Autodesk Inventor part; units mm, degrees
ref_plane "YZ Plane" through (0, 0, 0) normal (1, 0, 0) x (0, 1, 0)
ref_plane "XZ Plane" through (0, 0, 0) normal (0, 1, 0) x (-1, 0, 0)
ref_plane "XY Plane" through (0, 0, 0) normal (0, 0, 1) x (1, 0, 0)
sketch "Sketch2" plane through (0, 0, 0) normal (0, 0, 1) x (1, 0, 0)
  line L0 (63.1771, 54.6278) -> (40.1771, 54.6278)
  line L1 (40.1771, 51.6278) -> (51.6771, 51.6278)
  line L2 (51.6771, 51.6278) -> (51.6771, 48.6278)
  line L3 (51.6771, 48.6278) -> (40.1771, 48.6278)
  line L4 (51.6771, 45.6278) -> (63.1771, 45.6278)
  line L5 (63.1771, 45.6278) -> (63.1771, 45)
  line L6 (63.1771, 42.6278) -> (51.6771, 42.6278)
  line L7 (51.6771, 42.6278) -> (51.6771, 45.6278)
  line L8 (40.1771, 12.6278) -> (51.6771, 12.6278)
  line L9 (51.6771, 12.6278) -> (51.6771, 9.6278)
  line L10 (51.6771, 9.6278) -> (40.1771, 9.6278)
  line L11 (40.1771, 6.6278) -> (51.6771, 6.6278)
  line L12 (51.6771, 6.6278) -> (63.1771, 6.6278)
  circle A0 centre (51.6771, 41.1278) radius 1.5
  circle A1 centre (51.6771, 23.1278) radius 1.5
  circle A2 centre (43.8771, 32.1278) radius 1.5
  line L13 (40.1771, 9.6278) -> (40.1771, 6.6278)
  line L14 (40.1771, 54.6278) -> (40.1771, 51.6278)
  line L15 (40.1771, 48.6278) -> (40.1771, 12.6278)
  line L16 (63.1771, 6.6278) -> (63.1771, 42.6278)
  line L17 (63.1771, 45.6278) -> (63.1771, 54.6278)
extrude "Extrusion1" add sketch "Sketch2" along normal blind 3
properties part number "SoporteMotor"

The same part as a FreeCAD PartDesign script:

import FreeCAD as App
import Part
import Sketcher
from FreeCAD import Vector

doc = App.newDocument("Part")
params = doc.addObject("Spreadsheet::Sheet", "Params")
for row, (alias, value) in enumerate([
    ("sketch1_diameter", "3 mm"),
    ("sketch1_width", "23 mm"),
    ("sketch1_height", "9 mm"),
    ("sketch1_height2", "36 mm"),
    ("pad1_length", "3 mm"),
], start=1):
    params.set(f"A{row}", alias)
    params.set(f"B{row}", "=" + value)
    params.setAlias(f"B{row}", alias)

body = doc.addObject("PartDesign::Body", "Body")

sketch1 = doc.addObject("Sketcher::SketchObject", "Sketch")
body.addObject(sketch1)
sketch1.AttachmentSupport = (doc.XY_Plane, [""])
sketch1.MapMode = "FlatFace"
sketch1.addGeometry(Part.LineSegment(Vector(63.2, 45.6, 0), Vector(63.2, 54.6, 0)), False)
sketch1.addGeometry(Part.LineSegment(Vector(63.2, 54.6, 0), Vector(40.2, 54.6, 0)), False)
sketch1.addGeometry(Part.LineSegment(Vector(40.2, 54.6, 0), Vector(40.2, 51.6, 0)), False)
sketch1.addGeometry(Part.LineSegment(Vector(40.2, 51.6, 0), Vector(51.7, 51.6, 0)), False)
sketch1.addGeometry(Part.LineSegment(Vector(51.7, 51.6, 0), Vector(51.7, 48.6, 0)), False)
sketch1.addGeometry(Part.LineSegment(Vector(51.7, 48.6, 0), Vector(40.2, 48.6, 0)), False)
sketch1.addGeometry(Part.LineSegment(Vector(40.2, 48.6, 0), Vector(40.2, 12.6, 0)), False)
sketch1.addGeometry(Part.LineSegment(Vector(40.2, 12.6, 0), Vector(51.7, 12.6, 0)), False)
sketch1.addGeometry(Part.LineSegment(Vector(51.7, 12.6, 0), Vector(51.7, 9.6, 0)), False)
sketch1.addGeometry(Part.LineSegment(Vector(51.7, 9.6, 0), Vector(40.2, 9.6, 0)), False)
sketch1.addGeometry(Part.LineSegment(Vector(40.2, 9.6, 0), Vector(40.2, 6.6, 0)), False)
sketch1.addGeometry(Part.LineSegment(Vector(40.2, 6.6, 0), Vector(63.2, 6.6, 0)), False)
sketch1.addGeometry(Part.LineSegment(Vector(63.2, 6.6, 0), Vector(63.2, 42.6, 0)), False)
sketch1.addGeometry(Part.LineSegment(Vector(63.2, 42.6, 0), Vector(51.7, 42.6, 0)), False)
sketch1.addGeometry(Part.LineSegment(Vector(51.7, 42.6, 0), Vector(51.7, 45.6, 0)), False)
sketch1.addGeometry(Part.LineSegment(Vector(51.7, 45.6, 0), Vector(63.2, 45.6, 0)), False)
sketch1.addGeometry(Part.Circle(Vector(51.7, 23.1, 0), Vector(0, 0, 1), 1.5), False)
sketch1.addGeometry(Part.Circle(Vector(43.9, 32.1, 0), Vector(0, 0, 1), 1.5), False)
sketch1.addGeometry(Part.Circle(Vector(51.7, 41.1, 0), Vector(0, 0, 1), 1.5), False)
sketch1.addConstraint(Sketcher.Constraint("Coincident", 0, 2, 1, 1))
sketch1.addConstraint(Sketcher.Constraint("Coincident", 1, 2, 2, 1))
sketch1.addConstraint(Sketcher.Constraint("Coincident", 2, 2, 3, 1))
sketch1.addConstraint(Sketcher.Constraint("Coincident", 3, 2, 4, 1))
sketch1.addConstraint(Sketcher.Constraint("Coincident", 4, 2, 5, 1))
sketch1.addConstraint(Sketcher.Constraint("Coincident", 5, 2, 6, 1))
sketch1.addConstraint(Sketcher.Constraint("Coincident", 6, 2, 7, 1))
sketch1.addConstraint(Sketcher.Constraint("Coincident", 7, 2, 8, 1))
sketch1.addConstraint(Sketcher.Constraint("Coincident", 8, 2, 9, 1))
sketch1.addConstraint(Sketcher.Constraint("Coincident", 9, 2, 10, 1))
sketch1.addConstraint(Sketcher.Constraint("Coincident", 10, 2, 11, 1))
sketch1.addConstraint(Sketcher.Constraint("Coincident", 11, 2, 12, 1))
sketch1.addConstraint(Sketcher.Constraint("Coincident", 12, 2, 13, 1))
sketch1.addConstraint(Sketcher.Constraint("Coincident", 13, 2, 14, 1))
sketch1.addConstraint(Sketcher.Constraint("Coincident", 14, 2, 15, 1))
sketch1.addConstraint(Sketcher.Constraint("Coincident", 15, 2, 0, 1))
sketch1.addConstraint(Sketcher.Constraint("Vertical", 0))
sketch1.addConstraint(Sketcher.Constraint("Horizontal", 1))
sketch1.addConstraint(Sketcher.Constraint("Vertical", 2))
sketch1.addConstraint(Sketcher.Constraint("Horizontal", 3))
sketch1.addConstraint(Sketcher.Constraint("Vertical", 4))
sketch1.addConstraint(Sketcher.Constraint("Horizontal", 5))
sketch1.addConstraint(Sketcher.Constraint("Vertical", 6))
sketch1.addConstraint(Sketcher.Constraint("Horizontal", 7))
sketch1.addConstraint(Sketcher.Constraint("Vertical", 8))
sketch1.addConstraint(Sketcher.Constraint("Horizontal", 9))
sketch1.addConstraint(Sketcher.Constraint("Vertical", 10))
sketch1.addConstraint(Sketcher.Constraint("Horizontal", 11))
sketch1.addConstraint(Sketcher.Constraint("Vertical", 12))
sketch1.addConstraint(Sketcher.Constraint("Horizontal", 13))
sketch1.addConstraint(Sketcher.Constraint("Vertical", 14))
sketch1.addConstraint(Sketcher.Constraint("Horizontal", 15))
sketch1.addConstraint(Sketcher.Constraint("Equal", 16, 17))
sketch1.addConstraint(Sketcher.Constraint("Equal", 17, 18))
sketch1.addConstraint(Sketcher.Constraint("Vertical", 16, 3, 18, 3))
sketch1.addConstraint(Sketcher.Constraint("Vertical", 18, 3, 3, 2))
sketch1.addConstraint(Sketcher.Constraint("Vertical", 2, 2, 5, 2))
sketch1.addConstraint(Sketcher.Constraint("Vertical", 4, 2, 7, 2))
sketch1.addConstraint(Sketcher.Constraint("Vertical", 6, 2, 9, 2))
sketch1.addConstraint(Sketcher.Constraint("Vertical", 0, 2, 11, 2))
sketch1.addConstraint(Sketcher.Constraint("Vertical", 8, 2, 13, 2))
sketch1.addConstraint(Sketcher.Constraint("Equal", 9, 13))
sketch1.addConstraint(Sketcher.Constraint("Equal", 2, 4))
sketch1.addConstraint(Sketcher.Constraint("Equal", 4, 8))
sketch1.addConstraint(Sketcher.Constraint("Equal", 8, 10))
sketch1.addConstraint(Sketcher.Constraint("Equal", 6, 12))
sketch1.addConstraint(Sketcher.Constraint("Equal", 10, 14))
sketch1.addConstraint(Sketcher.Constraint("Diameter", 16, 3.0))
sketch1.addConstraint(Sketcher.Constraint("DistanceX", 1, 2, 1, 1, 23.0))
sketch1.addConstraint(Sketcher.Constraint("DistanceY", 0, 1, 0, 2, 9.0))
sketch1.addConstraint(Sketcher.Constraint("DistanceY", 6, 2, 6, 1, 36.0))
sketch1.addConstraint(Sketcher.Constraint("DistanceY", 16, 3, 17, 3, 9.0))
sketch1.addConstraint(Sketcher.Constraint("DistanceY", 17, 3, 18, 3, 9.0))
sketch1.addConstraint(Sketcher.Constraint("DistanceX", 17, 3, 16, 3, 7.8))
sketch1.addConstraint(Sketcher.Constraint("DistanceY", 18, 3, 0, 2, 13.5))
sketch1.addConstraint(Sketcher.Constraint("DistanceX", -1, 1, 16, 3, 51.677))
sketch1.addConstraint(Sketcher.Constraint("DistanceY", -1, 1, 16, 3, 23.1278))
sketch1.setExpression("Constraints[47]", "Params.sketch1_diameter")
sketch1.setExpression("Constraints[48]", "Params.sketch1_width")
sketch1.setExpression("Constraints[49]", "Params.sketch1_height")
sketch1.setExpression("Constraints[50]", "Params.sketch1_height2")
pad1 = doc.addObject("PartDesign::Pad", "Pad")
body.addObject(pad1)
pad1.Profile = sketch1
pad1.setExpression("Length", "Params.pad1_length")

doc.recompute()
